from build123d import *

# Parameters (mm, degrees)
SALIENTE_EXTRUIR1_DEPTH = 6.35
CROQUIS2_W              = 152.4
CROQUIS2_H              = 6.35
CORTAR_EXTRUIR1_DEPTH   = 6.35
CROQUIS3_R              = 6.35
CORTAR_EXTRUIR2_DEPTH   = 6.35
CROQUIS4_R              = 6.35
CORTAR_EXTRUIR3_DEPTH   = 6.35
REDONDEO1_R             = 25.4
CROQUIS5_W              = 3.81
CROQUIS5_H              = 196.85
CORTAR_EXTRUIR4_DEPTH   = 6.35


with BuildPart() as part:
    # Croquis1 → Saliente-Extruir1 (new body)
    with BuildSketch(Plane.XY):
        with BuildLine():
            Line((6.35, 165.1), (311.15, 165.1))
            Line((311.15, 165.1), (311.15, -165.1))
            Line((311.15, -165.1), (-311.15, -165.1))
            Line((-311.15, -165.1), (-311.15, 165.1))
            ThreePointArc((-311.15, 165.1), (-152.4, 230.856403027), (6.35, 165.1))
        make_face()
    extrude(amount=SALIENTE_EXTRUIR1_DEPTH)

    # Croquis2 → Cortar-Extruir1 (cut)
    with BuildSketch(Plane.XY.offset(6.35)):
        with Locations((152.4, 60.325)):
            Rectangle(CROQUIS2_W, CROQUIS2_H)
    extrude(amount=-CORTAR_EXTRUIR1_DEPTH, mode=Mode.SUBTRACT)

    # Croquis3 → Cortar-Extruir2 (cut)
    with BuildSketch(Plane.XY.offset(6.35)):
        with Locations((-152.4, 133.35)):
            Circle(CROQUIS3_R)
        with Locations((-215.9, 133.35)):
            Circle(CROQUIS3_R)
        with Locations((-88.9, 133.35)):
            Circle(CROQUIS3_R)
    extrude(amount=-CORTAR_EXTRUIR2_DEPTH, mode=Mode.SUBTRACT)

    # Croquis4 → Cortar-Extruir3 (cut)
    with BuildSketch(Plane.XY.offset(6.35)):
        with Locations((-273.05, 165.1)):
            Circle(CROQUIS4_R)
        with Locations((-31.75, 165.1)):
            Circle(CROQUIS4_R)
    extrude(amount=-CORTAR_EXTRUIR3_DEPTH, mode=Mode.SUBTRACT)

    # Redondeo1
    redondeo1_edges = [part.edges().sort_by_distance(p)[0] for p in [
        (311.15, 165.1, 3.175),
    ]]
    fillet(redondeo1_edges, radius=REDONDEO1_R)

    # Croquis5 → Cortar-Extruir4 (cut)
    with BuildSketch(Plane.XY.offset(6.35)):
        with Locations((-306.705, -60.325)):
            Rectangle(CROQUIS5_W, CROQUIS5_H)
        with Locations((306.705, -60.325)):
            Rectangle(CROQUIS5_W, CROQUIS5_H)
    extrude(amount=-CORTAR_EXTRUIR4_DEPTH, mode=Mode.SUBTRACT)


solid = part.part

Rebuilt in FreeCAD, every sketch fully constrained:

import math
import FreeCAD as App
import Part
import Sketcher
from FreeCAD import Vector
Q = App.Units.Quantity


def edges_at(feature, points):
    """Names of the edges that pass closest to the given points."""
    edges = feature.Shape.Edges
    near = lambda p: min(range(len(edges)), key=lambda i: edges[i].distToShape(Part.Vertex(*p))[0])
    return sorted({f"Edge{near(p) + 1}" for p in points})


def add_polygon(sketch, points):
    """Adds a closed chain of lines whose ends are joined by coincident constraints."""
    first, n = sketch.GeometryCount, len(points)
    for a, b in zip(points, points[1:] + points[:1]):
        sketch.addGeometry(Part.LineSegment(App.Vector(*a, 0), App.Vector(*b, 0)), False)
    for i in range(n):
        sketch.addConstraint(Sketcher.Constraint("Coincident", first + i, 2, first + (i + 1) % n, 1))

doc = App.newDocument("Part")
body = doc.addObject("PartDesign::Body", "Body")

# Sketch on XY plane
sketch1 = body.newObject("Sketcher::SketchObject", "Sketch")
sketch1.AttachmentSupport = (doc.getObject("XY_Plane"), [""])
sketch1.MapMode = "FlatFace"
sketch1.addGeometry([
    Part.LineSegment(Vector(311, 165, 0), Vector(6, 165, 0)),  # 0
    Part.ArcOfCircle(Part.Circle(Vector(-152, 6, 0), Vector(0, 0, 1), 225), math.radians(45), math.radians(135)),  # 1
    Part.LineSegment(Vector(-311, 165, 0), Vector(-311, -165, 0)),  # 2
    Part.LineSegment(Vector(-311, -165, 0), Vector(311, -165, 0)),  # 3
    Part.LineSegment(Vector(311, -165, 0), Vector(311, 165, 0)),  # 4
], False)
sketch1.addConstraint([
    Sketcher.Constraint("Coincident", 0, 2, 1, 1),
    Sketcher.Constraint("Coincident", 1, 2, 2, 1),
    Sketcher.Constraint("Coincident", 2, 2, 3, 1),
    Sketcher.Constraint("Coincident", 3, 2, 4, 1),
    Sketcher.Constraint("Coincident", 4, 2, 0, 1),
    Sketcher.Constraint("Horizontal", 0),
    Sketcher.Constraint("Vertical", 2),
    Sketcher.Constraint("Horizontal", 3),
    Sketcher.Constraint("Vertical", 4),
    Sketcher.Constraint("Symmetric", 1, 2, 3, 2, -1, 1),
    Sketcher.Constraint("Horizontal", 0, 2, 1, 2),
    Sketcher.Constraint("DistanceX", 0, 2, 0, 1, Q("12 in")),
    Sketcher.Constraint("DistanceY", 2, 2, 2, 1, Q("13 in")),
    Sketcher.Constraint("DistanceX", 3, 1, 3, 2, Q("24.5 in")),
    Sketcher.Constraint("DistanceY", -1, 1, 1, 3, Q("0.25 in")),
])
pad1 = body.newObject("PartDesign::Pad", "Pad")
pad1.Profile = sketch1
pad1.Length = Q("0.25 in")

# Sketch on XY plane
sketch2 = body.newObject("Sketcher::SketchObject", "Sketch001")
sketch2.AttachmentSupport = (doc.getObject("XY_Plane"), [""])
sketch2.MapMode = "FlatFace"
sketch2.AttachmentOffset = App.Placement(Vector(0, 0, 0.25 * 25.4), App.Rotation())
add_polygon(sketch2, [(76, 64), (76, 57), (229, 57), (229, 64)])  # lines 0-3
sketch2.addConstraint([
    Sketcher.Constraint("Vertical", 0),
    Sketcher.Constraint("Horizontal", 1),
    Sketcher.Constraint("Vertical", 2),
    Sketcher.Constraint("Horizontal", 3),
    Sketcher.Constraint("DistanceX", 1, 1, 1, 2, Q("6 in")),
    Sketcher.Constraint("DistanceX", -1, 1, 0, 2, Q("3 in")),
    Sketcher.Constraint("DistanceY", 0, 2, 0, 1, Q("0.25 in")),
    Sketcher.Constraint("DistanceY", -1, 1, 2, 2, Q("2.5 in")),
])
pocket1 = body.newObject("PartDesign::Pocket", "Pocket")
pocket1.Profile = sketch2
pocket1.Length = Q("0.25 in")

# Sketch on XY plane
sketch3 = body.newObject("Sketcher::SketchObject", "Sketch002")
sketch3.AttachmentSupport = (doc.getObject("XY_Plane"), [""])
sketch3.MapMode = "FlatFace"
sketch3.AttachmentOffset = App.Placement(Vector(0, 0, 0.25 * 25.4), App.Rotation())
sketch3.addGeometry([
    Part.Circle(Vector(-152, 133, 0), Vector(0, 0, 1), 6),
    Part.Circle(Vector(-216, 133, 0), Vector(0, 0, 1), 6),
    Part.Circle(Vector(-89, 133, 0), Vector(0, 0, 1), 6),
], False)
sketch3.addConstraint([
    Sketcher.Constraint("Equal", 0, 1),
    Sketcher.Constraint("Equal", 1, 2),
    Sketcher.Constraint("Horizontal", 0, 3, 1, 3),
    Sketcher.Constraint("Horizontal", 1, 3, 2, 3),
    Sketcher.Constraint("Diameter", 0, Q("0.5 in")),
    Sketcher.Constraint("DistanceX", 0, 3, -1, 1, Q("6 in")),
    Sketcher.Constraint("DistanceX", 1, 3, 2, 3, Q("5 in")),
    Sketcher.Constraint("DistanceX", 1, 3, -1, 1, Q("8.5 in")),
    Sketcher.Constraint("DistanceY", -1, 1, 0, 3, Q("5.25 in")),
])
pocket2 = body.newObject("PartDesign::Pocket", "Pocket001")
pocket2.Profile = sketch3
pocket2.Length = Q("0.25 in")

# Sketch on XY plane
sketch4 = body.newObject("Sketcher::SketchObject", "Sketch003")
sketch4.AttachmentSupport = (doc.getObject("XY_Plane"), [""])
sketch4.MapMode = "FlatFace"
sketch4.AttachmentOffset = App.Placement(Vector(0, 0, 0.25 * 25.4), App.Rotation())
sketch4.addGeometry([
    Part.Circle(Vector(-273, 165, 0), Vector(0, 0, 1), 6),
    Part.Circle(Vector(-32, 165, 0), Vector(0, 0, 1), 6),
], False)
sketch4.addConstraint([
    Sketcher.Constraint("Equal", 0, 1),
    Sketcher.Constraint("Horizontal", 0, 3, 1, 3),
    Sketcher.Constraint("Diameter", 0, Q("0.5 in")),
    Sketcher.Constraint("DistanceY", -1, 1, 0, 3, Q("6.5 in")),
    Sketcher.Constraint("DistanceX", 0, 3, 1, 3, Q("9.5 in")),
    Sketcher.Constraint("DistanceX", 0, 3, -1, 1, Q("10.75 in")),
])
pocket3 = body.newObject("PartDesign::Pocket", "Pocket002")
pocket3.Profile = sketch4
pocket3.Length = Q("0.25 in")
doc.recompute()

fillet = body.newObject("PartDesign::Fillet", "Fillet")
fillet.Base = (pocket3, edges_at(pocket3, [(311.15, 165.1, 3.175)]))
fillet.Radius = Q("1 in")

# Sketch on XY plane
sketch5 = body.newObject("Sketcher::SketchObject", "Sketch004")
sketch5.AttachmentSupport = (doc.getObject("XY_Plane"), [""])
sketch5.MapMode = "FlatFace"
sketch5.AttachmentOffset = App.Placement(Vector(0, 0, 0.25 * 25.4), App.Rotation())
add_polygon(sketch5, [(-308.6, 38.1), (-308.6, -158.8), (-304.8, -158.8), (-304.8, 38.1)])  # lines 0-3
add_polygon(sketch5, [(304.8, 38.1), (304.8, -158.8), (308.6, -158.8), (308.6, 38.1)])  # lines 4-7
sketch5.addConstraint([
    Sketcher.Constraint("Vertical", 0),
    Sketcher.Constraint("Horizontal", 1),
    Sketcher.Constraint("Vertical", 2),
    Sketcher.Constraint("Horizontal", 3),
    Sketcher.Constraint("Vertical", 4),
    Sketcher.Constraint("Horizontal", 5),
    Sketcher.Constraint("Vertical", 6),
    Sketcher.Constraint("Horizontal", 7),
    Sketcher.Constraint("Symmetric", 1, 2, 4, 2, -2),
    Sketcher.Constraint("Symmetric", 3, 2, 6, 2, -2),
    Sketcher.Constraint("DistanceX", 1, 2, -1, 1, Q("12 in")),
    Sketcher.Constraint("DistanceX", 1, 1, 1, 2, Q("0.15 in")),
    Sketcher.Constraint("DistanceY", 0, 2, 0, 1, Q("7.75 in")),
    Sketcher.Constraint("DistanceY", -1, 1, 2, 2, Q("1.5 in")),
])
pocket4 = body.newObject("PartDesign::Pocket", "Pocket003")
pocket4.Profile = sketch5
pocket4.Length = Q("0.25 in")

doc.recompute()
